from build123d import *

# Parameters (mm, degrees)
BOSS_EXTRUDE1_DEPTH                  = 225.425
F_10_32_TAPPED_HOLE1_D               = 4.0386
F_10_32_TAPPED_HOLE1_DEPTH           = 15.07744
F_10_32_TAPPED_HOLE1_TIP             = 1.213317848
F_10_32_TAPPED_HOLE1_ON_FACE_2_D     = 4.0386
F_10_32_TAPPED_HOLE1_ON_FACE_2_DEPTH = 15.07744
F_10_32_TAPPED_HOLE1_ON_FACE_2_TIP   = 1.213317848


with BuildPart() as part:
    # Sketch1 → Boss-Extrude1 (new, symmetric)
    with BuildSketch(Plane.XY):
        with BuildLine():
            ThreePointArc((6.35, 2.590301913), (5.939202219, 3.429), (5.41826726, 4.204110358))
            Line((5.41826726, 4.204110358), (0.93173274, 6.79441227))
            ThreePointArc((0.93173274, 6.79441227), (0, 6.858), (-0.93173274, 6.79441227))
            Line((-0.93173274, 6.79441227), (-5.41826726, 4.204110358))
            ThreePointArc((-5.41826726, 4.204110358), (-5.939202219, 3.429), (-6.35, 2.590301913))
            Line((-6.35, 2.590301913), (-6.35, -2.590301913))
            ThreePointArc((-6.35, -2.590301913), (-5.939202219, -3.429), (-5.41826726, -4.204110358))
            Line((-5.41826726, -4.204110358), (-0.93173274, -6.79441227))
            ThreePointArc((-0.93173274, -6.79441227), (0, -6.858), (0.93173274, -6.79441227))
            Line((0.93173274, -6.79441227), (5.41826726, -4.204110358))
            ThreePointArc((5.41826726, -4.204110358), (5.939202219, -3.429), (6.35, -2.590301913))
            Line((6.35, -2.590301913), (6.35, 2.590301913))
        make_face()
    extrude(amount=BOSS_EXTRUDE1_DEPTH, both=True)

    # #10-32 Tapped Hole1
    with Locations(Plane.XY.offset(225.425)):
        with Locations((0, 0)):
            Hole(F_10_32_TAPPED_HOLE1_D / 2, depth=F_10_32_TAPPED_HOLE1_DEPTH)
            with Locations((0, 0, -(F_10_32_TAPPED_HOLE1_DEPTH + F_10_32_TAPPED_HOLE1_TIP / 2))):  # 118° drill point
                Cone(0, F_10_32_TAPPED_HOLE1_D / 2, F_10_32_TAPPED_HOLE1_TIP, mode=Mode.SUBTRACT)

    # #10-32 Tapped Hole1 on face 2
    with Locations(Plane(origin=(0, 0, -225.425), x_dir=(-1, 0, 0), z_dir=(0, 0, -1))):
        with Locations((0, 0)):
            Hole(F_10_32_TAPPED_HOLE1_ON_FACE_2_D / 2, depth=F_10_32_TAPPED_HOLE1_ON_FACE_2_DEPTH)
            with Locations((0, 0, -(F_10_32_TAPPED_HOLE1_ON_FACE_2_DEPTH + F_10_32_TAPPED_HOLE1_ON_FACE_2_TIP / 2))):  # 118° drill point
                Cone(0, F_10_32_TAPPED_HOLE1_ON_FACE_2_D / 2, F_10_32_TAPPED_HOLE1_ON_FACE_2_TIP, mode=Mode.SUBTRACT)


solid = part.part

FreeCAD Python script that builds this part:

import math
import FreeCAD as App
import Part
import Sketcher
from FreeCAD import Vector
Q = App.Units.Quantity

doc = App.newDocument("Part")
params = doc.addObject("Spreadsheet::Sheet", "Params")
for row, (alias, value) in enumerate([
    ("sketch1_radius", "0.27 in"),
    ("pad1_length", "17.75 in"),
    ("sketch2_diameter", "0.159 in"),
    ("hole_diameter", "0.159 in"),
    ("hole_depth", "0.5936 in"),
    ("sketch3_diameter", "0.159 in"),
    ("hole2_diameter", "0.159 in"),
    ("hole2_depth", "0.5936 in"),
], start=1):
    params.set(f"A{row}", alias)
    params.set(f"B{row}", "=" + value)
    params.setAlias(f"B{row}", alias)

body = doc.addObject("PartDesign::Body", "Body")

# Sketch on XY plane
sketch1 = doc.addObject("Sketcher::SketchObject", "Sketch")
body.addObject(sketch1)
sketch1.AttachmentSupport = (doc.XY_Plane, [""])
sketch1.MapMode = "FlatFace"
sketch1.addGeometry(Part.ArcOfCircle(Part.Circle(Vector(0, 0, 0), Vector(0, 0, 1), 6.858), math.radians(22.191607), math.radians(37.808393)), False)
sketch1.addGeometry(Part.LineSegment(Vector(5.418267, 4.20411, 0), Vector(0.931733, 6.794412, 0)), False)
sketch1.addGeometry(Part.ArcOfCircle(Part.Circle(Vector(0, 0, 0), Vector(0, 0, 1), 6.858), math.radians(82.191607), math.radians(97.808393)), False)
sketch1.addGeometry(Part.LineSegment(Vector(-0.931733, 6.794412, 0), Vector(-5.418267, 4.20411, 0)), False)
sketch1.addGeometry(Part.ArcOfCircle(Part.Circle(Vector(0, 0, 0), Vector(0, 0, 1), 6.858), math.radians(142.191607), math.radians(157.808393)), False)
sketch1.addGeometry(Part.LineSegment(Vector(-6.35, 2.590302, 0), Vector(-6.35, -2.590302, 0)), False)
sketch1.addGeometry(Part.ArcOfCircle(Part.Circle(Vector(0, 0, 0), Vector(0, 0, 1), 6.858), math.radians(-157.808393), math.radians(-142.191607)), False)
sketch1.addGeometry(Part.LineSegment(Vector(-5.418267, -4.20411, 0), Vector(-0.931733, -6.794412, 0)), False)
sketch1.addGeometry(Part.ArcOfCircle(Part.Circle(Vector(0, 0, 0), Vector(0, 0, 1), 6.858), math.radians(-97.808393), math.radians(-82.191607)), False)
sketch1.addGeometry(Part.LineSegment(Vector(0.931733, -6.794412, 0), Vector(5.418267, -4.20411, 0)), False)
sketch1.addGeometry(Part.ArcOfCircle(Part.Circle(Vector(0, 0, 0), Vector(0, 0, 1), 6.858), math.radians(-37.808393), math.radians(-22.191607)), False)
sketch1.addGeometry(Part.LineSegment(Vector(6.35, -2.590302, 0), Vector(6.35, 2.590302, 0)), False)
sketch1.addConstraint(Sketcher.Constraint("Coincident", 0, 2, 1, 1))
sketch1.addConstraint(Sketcher.Constraint("Coincident", 1, 2, 2, 1))
sketch1.addConstraint(Sketcher.Constraint("Coincident", 2, 2, 3, 1))
sketch1.addConstraint(Sketcher.Constraint("Coincident", 3, 2, 4, 1))
sketch1.addConstraint(Sketcher.Constraint("Coincident", 4, 2, 5, 1))
sketch1.addConstraint(Sketcher.Constraint("Coincident", 5, 2, 6, 1))
sketch1.addConstraint(Sketcher.Constraint("Coincident", 6, 2, 7, 1))
sketch1.addConstraint(Sketcher.Constraint("Coincident", 7, 2, 8, 1))
sketch1.addConstraint(Sketcher.Constraint("Coincident", 8, 2, 9, 1))
sketch1.addConstraint(Sketcher.Constraint("Coincident", 9, 2, 10, 1))
sketch1.addConstraint(Sketcher.Constraint("Coincident", 10, 2, 11, 1))
sketch1.addConstraint(Sketcher.Constraint("Coincident", 11, 2, 0, 1))
sketch1.addConstraint(Sketcher.Constraint("Vertical", 5))
sketch1.addConstraint(Sketcher.Constraint("Vertical", 11))
sketch1.addConstraint(Sketcher.Constraint("Coincident", 0, 3, -1, 1))
sketch1.addConstraint(Sketcher.Constraint("Coincident", 2, 3, -1, 1))
sketch1.addConstraint(Sketcher.Constraint("Coincident", 4, 3, -1, 1))
sketch1.addConstraint(Sketcher.Constraint("Coincident", 6, 3, -1, 1))
sketch1.addConstraint(Sketcher.Constraint("Coincident", 8, 3, -1, 1))
sketch1.addConstraint(Sketcher.Constraint("Coincident", 10, 3, -1, 1))
sketch1.addConstraint(Sketcher.Constraint("Equal", 0, 2))
sketch1.addConstraint(Sketcher.Constraint("Equal", 2, 4))
sketch1.addConstraint(Sketcher.Constraint("Equal", 4, 6))
sketch1.addConstraint(Sketcher.Constraint("Equal", 6, 8))
sketch1.addConstraint(Sketcher.Constraint("Equal", 8, 10))
sketch1.addConstraint(Sketcher.Constraint("Parallel", 1, 7))
sketch1.addConstraint(Sketcher.Constraint("Parallel", 3, 9))
sketch1.addConstraint(Sketcher.Constraint("Horizontal", 1, 2, 2, 2))
sketch1.addConstraint(Sketcher.Constraint("Horizontal", 0, 2, 3, 2))
sketch1.addConstraint(Sketcher.Constraint("Horizontal", 7, 2, 8, 2))
sketch1.addConstraint(Sketcher.Constraint("Horizontal", 5, 2, 10, 2))
sketch1.addConstraint(Sketcher.Constraint("Vertical", 3, 2, 6, 2))
sketch1.addConstraint(Sketcher.Constraint("Radius", 0, Q("0.27 in")))
sketch1.addConstraint(Sketcher.Constraint("Angle", 1, Q("150 deg")))
sketch1.addConstraint(Sketcher.Constraint("DistanceX", 4, 2, -1, 1, Q("0.25 in")))
sketch1.addConstraint(Sketcher.Constraint("DistanceX", 2, 2, 0, 2, Q("0.25 in")))
sketch1.setExpression("Constraints[32]", "Params.sketch1_radius")
pad1 = doc.addObject("PartDesign::Pad", "Pad")
body.addObject(pad1)
pad1.Profile = sketch1
pad1.setExpression("Length", "Params.pad1_length")
pad1.Midplane = True

# Sketch on XY plane
sketch2 = doc.addObject("Sketcher::SketchObject", "Sketch001")
body.addObject(sketch2)
sketch2.AttachmentSupport = (doc.XY_Plane, [""])
sketch2.MapMode = "FlatFace"
sketch2.AttachmentOffset = App.Placement(Vector(0, 0, 8.875 * 25.4), App.Rotation())
sketch2.addGeometry(Part.Circle(Vector(0, 0, 0), Vector(0, 0, 1), 2.0193), False)
sketch2.addConstraint(Sketcher.Constraint("Coincident", 0, 3, -1, 1))
sketch2.addConstraint(Sketcher.Constraint("Diameter", 0, Q("0.159 in")))
sketch2.setExpression("Constraints[1]", "Params.sketch2_diameter")
doc.recompute()
hole = doc.addObject("PartDesign::Hole", "Hole")
body.addObject(hole)
hole.Profile = sketch2
hole.ThreadType = "None"
hole.setExpression("Diameter", "Params.hole_diameter")
hole.DepthType = "Dimension"
hole.setExpression("Depth", "Params.hole_depth")
hole.DrillPoint = "Angled"
hole.DrillPointAngle = 118

# Sketch on XY plane
sketch3 = doc.addObject("Sketcher::SketchObject", "Sketch002")
body.addObject(sketch3)
sketch3.AttachmentSupport = (doc.XY_Plane, [""])
sketch3.MapMode = "FlatFace"
sketch3.AttachmentOffset = App.Placement(Vector(0, 0, -8.875 * 25.4), App.Rotation())
sketch3.addGeometry(Part.Circle(Vector(0, 0, 0), Vector(0, 0, 1), 2.0193), False)
sketch3.addConstraint(Sketcher.Constraint("Coincident", 0, 3, -1, 1))
sketch3.addConstraint(Sketcher.Constraint("Diameter", 0, Q("0.159 in")))
sketch3.setExpression("Constraints[1]", "Params.sketch3_diameter")
doc.recompute()
hole2 = doc.addObject("PartDesign::Hole", "Hole001")
body.addObject(hole2)
hole2.Profile = sketch3
hole2.ThreadType = "None"
hole2.setExpression("Diameter", "Params.hole2_diameter")
hole2.DepthType = "Dimension"
hole2.setExpression("Depth", "Params.hole2_depth")
hole2.DrillPoint = "Angled"
hole2.DrillPointAngle = 118
hole2.Reversed = True

doc.recompute()
